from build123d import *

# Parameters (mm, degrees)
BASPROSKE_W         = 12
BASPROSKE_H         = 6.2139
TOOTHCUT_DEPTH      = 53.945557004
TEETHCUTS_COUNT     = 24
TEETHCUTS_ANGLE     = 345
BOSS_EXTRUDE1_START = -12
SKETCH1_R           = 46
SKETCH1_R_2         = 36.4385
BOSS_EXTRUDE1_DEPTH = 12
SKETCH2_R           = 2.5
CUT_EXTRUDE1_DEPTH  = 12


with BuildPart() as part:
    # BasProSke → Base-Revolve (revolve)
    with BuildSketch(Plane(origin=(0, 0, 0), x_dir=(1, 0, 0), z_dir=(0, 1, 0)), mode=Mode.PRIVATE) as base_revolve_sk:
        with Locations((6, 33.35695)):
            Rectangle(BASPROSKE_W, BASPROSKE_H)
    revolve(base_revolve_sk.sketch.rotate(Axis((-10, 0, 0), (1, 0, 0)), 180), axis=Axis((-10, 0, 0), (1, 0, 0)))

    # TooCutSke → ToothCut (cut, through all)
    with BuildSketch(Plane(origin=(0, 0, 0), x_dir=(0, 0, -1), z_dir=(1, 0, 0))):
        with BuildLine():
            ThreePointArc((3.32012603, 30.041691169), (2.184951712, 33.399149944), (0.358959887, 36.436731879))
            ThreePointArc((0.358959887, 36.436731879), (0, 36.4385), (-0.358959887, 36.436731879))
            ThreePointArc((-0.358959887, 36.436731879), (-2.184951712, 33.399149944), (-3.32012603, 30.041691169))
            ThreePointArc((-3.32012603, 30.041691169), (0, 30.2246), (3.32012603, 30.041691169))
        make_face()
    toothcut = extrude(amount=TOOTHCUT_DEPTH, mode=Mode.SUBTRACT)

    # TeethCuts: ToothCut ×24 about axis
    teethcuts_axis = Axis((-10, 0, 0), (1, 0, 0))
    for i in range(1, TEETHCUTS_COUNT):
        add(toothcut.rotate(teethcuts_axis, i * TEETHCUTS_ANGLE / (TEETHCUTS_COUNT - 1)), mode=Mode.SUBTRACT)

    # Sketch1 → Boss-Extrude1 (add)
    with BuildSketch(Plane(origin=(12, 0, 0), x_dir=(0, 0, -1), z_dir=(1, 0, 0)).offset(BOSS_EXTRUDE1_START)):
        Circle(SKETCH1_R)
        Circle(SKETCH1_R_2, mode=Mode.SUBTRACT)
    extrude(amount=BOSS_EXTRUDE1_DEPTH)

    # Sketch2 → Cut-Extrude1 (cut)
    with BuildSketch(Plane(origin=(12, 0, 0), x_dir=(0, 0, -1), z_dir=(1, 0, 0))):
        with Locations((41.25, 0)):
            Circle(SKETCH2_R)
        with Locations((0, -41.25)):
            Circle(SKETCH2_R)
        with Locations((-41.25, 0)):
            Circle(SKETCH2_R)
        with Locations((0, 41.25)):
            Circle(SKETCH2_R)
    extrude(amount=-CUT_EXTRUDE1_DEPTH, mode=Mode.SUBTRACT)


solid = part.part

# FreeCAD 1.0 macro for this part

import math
import FreeCAD as App
import Part
import Sketcher

V = App.Vector


def add_polygon(sketch, points):
    """Adds a closed chain of lines whose ends are joined by coincident constraints."""
    first, n = sketch.GeometryCount, len(points)
    for a, b in zip(points, points[1:] + points[:1]):
        sketch.addGeometry(Part.LineSegment(App.Vector(*a, 0), App.Vector(*b, 0)), False)
    for i in range(n):
        sketch.addConstraint(Sketcher.Constraint("Coincident", first + i, 2, first + (i + 1) % n, 1))

doc = App.newDocument("Part")
body = doc.addObject("PartDesign::Body", "Body")

# Sketch on XZ plane
sketch1 = body.newObject("Sketcher::SketchObject", "Sketch")
sketch1.AttachmentSupport = (doc.getObject("XZ_Plane"), [""])
sketch1.MapMode = "FlatFace"
add_polygon(sketch1, [(0, -36.4639), (0, -30.25), (12, -30.25), (12, -36.4639)])  # lines 0-3
sketch1.addConstraint([
    Sketcher.Constraint("Vertical", 0),
    Sketcher.Constraint("Horizontal", 1),
    Sketcher.Constraint("Vertical", 2),
    Sketcher.Constraint("Horizontal", 3),
    Sketcher.Constraint("PointOnObject", 0, 2, -2),
    Sketcher.Constraint("DistanceX", 1, 1, 1, 2, 12.0),
    Sketcher.Constraint("DistanceY", 0, 2, -1, 1, 30.25),
    Sketcher.Constraint("DistanceY", 0, 1, 0, 2, 6.2139),
])
revolution = body.newObject("PartDesign::Revolution", "Revolution")
revolution.Profile = sketch1
revolution.ReferenceAxis = (sketch1, ["H_Axis"])
revolution.Angle = 360

# Sketch on YZ plane
sketch2 = body.newObject("Sketcher::SketchObject", "Sketch001")
sketch2.AttachmentSupport = (doc.getObject("YZ_Plane"), [""])
sketch2.MapMode = "FlatFace"
sketch2.addGeometry([
    Part.ArcOfCircle(Part.Circle(V(26.466149, 12.787807, 0), V(0, 0, 1), 16.5), math.radians(-77.484745), math.radians(-52.823111)),
    Part.ArcOfCircle(Part.Circle(V(0.000008, 0, 0), V(0, 0, 1), 36.438492), math.radians(-0.564437), math.radians(0.564437)),
    Part.ArcOfCircle(Part.Circle(V(26.466149, -12.787807, 0), V(0, 0, 1), 16.5), math.radians(52.823111), math.radians(77.484745)),
    Part.ArcOfCircle(Part.Circle(V(0, 0, 0), V(0, 0, 1), 30.2246), math.radians(-6.306581), math.radians(6.306581)),
], False)
sketch2.addConstraint([
    Sketcher.Constraint("Coincident", 0, 2, 1, 1),
    Sketcher.Constraint("Coincident", 1, 2, 2, 1),
    Sketcher.Constraint("Coincident", 2, 2, 3, 2),
    Sketcher.Constraint("Coincident", 3, 1, 0, 1),
    Sketcher.Constraint("Coincident", 1, 3, -1, 1),
    Sketcher.Constraint("Coincident", 3, 3, -1, 1),
    Sketcher.Constraint("Equal", 0, 2),
    Sketcher.Constraint("Symmetric", 0, 3, 2, 3, -1),
    Sketcher.Constraint("Radius", 0, 16.5),
    Sketcher.Constraint("Radius", 3, 30.2246),
    Sketcher.Constraint("Radius", 1, 36.438492),
    Sketcher.Constraint("DistanceX", -1, 1, 0, 3, 26.466149),
    Sketcher.Constraint("DistanceY", 0, 2, -1, 1, 0.35896),
])
pocket1 = body.newObject("PartDesign::Pocket", "Pocket")
pocket1.Profile = sketch2
pocket1.Type = "ThroughAll"
pocket1.Reversed = True
doc.recompute()

polarpattern = body.newObject("PartDesign::PolarPattern", "PolarPattern")
polarpattern.Originals = [pocket1]
polarpattern.Axis = (doc.getObject("X_Axis"), [""])
polarpattern.Angle = 360
polarpattern.Occurrences = 24
body.Tip = polarpattern

# Sketch on YZ plane
sketch3 = body.newObject("Sketcher::SketchObject", "Sketch002")
sketch3.AttachmentSupport = (doc.getObject("YZ_Plane"), [""])
sketch3.MapMode = "FlatFace"
sketch3.addGeometry([
    Part.Circle(V(0, 0, 0), V(0, 0, 1), 46),
    Part.Circle(V(0, 0, 0), V(0, 0, 1), 36.4385),
], False)
sketch3.addConstraint([
    Sketcher.Constraint("Coincident", 0, 3, -1, 1),
    Sketcher.Constraint("Coincident", 1, 3, -1, 1),
    Sketcher.Constraint("Diameter", 0, 92.0),
    Sketcher.Constraint("Diameter", 1, 72.877),
])
pad1 = body.newObject("PartDesign::Pad", "Pad")
pad1.Profile = sketch3
pad1.Length = 12

# Sketch on YZ plane
sketch4 = body.newObject("Sketcher::SketchObject", "Sketch003")
sketch4.AttachmentSupport = (doc.getObject("YZ_Plane"), [""])
sketch4.MapMode = "FlatFace"
sketch4.AttachmentOffset = App.Placement(V(0, 0, 12), App.Rotation())
sketch4.addGeometry([
    Part.Circle(V(0, -41.25, 0), V(0, 0, 1), 2.5),
    Part.Circle(V(-41.25, 0, 0), V(0, 0, 1), 2.5),
    Part.Circle(V(0, 41.25, 0), V(0, 0, 1), 2.5),
    Part.Circle(V(41.25, 0, 0), V(0, 0, 1), 2.5),
], False)
sketch4.addConstraint([
    Sketcher.Constraint("Equal", 0, 1),
    Sketcher.Constraint("Equal", 1, 2),
    Sketcher.Constraint("Equal", 2, 3),
    Sketcher.Constraint("Symmetric", 0, 3, 2, 3, -1, 1),
    Sketcher.Constraint("Symmetric", 1, 3, 3, 3, -1, 1),
    Sketcher.Constraint("PointOnObject", 0, 3, -2),
    Sketcher.Constraint("PointOnObject", 1, 3, -1),
    Sketcher.Constraint("Diameter", 0, 5.0),
    Sketcher.Constraint("DistanceY", 0, 3, 2, 3, 82.5),
    Sketcher.Constraint("DistanceX", 1, 3, 3, 3, 82.5),
])
pocket2 = body.newObject("PartDesign::Pocket", "Pocket001")
pocket2.Profile = sketch4
pocket2.Length = 12

doc.recompute()
